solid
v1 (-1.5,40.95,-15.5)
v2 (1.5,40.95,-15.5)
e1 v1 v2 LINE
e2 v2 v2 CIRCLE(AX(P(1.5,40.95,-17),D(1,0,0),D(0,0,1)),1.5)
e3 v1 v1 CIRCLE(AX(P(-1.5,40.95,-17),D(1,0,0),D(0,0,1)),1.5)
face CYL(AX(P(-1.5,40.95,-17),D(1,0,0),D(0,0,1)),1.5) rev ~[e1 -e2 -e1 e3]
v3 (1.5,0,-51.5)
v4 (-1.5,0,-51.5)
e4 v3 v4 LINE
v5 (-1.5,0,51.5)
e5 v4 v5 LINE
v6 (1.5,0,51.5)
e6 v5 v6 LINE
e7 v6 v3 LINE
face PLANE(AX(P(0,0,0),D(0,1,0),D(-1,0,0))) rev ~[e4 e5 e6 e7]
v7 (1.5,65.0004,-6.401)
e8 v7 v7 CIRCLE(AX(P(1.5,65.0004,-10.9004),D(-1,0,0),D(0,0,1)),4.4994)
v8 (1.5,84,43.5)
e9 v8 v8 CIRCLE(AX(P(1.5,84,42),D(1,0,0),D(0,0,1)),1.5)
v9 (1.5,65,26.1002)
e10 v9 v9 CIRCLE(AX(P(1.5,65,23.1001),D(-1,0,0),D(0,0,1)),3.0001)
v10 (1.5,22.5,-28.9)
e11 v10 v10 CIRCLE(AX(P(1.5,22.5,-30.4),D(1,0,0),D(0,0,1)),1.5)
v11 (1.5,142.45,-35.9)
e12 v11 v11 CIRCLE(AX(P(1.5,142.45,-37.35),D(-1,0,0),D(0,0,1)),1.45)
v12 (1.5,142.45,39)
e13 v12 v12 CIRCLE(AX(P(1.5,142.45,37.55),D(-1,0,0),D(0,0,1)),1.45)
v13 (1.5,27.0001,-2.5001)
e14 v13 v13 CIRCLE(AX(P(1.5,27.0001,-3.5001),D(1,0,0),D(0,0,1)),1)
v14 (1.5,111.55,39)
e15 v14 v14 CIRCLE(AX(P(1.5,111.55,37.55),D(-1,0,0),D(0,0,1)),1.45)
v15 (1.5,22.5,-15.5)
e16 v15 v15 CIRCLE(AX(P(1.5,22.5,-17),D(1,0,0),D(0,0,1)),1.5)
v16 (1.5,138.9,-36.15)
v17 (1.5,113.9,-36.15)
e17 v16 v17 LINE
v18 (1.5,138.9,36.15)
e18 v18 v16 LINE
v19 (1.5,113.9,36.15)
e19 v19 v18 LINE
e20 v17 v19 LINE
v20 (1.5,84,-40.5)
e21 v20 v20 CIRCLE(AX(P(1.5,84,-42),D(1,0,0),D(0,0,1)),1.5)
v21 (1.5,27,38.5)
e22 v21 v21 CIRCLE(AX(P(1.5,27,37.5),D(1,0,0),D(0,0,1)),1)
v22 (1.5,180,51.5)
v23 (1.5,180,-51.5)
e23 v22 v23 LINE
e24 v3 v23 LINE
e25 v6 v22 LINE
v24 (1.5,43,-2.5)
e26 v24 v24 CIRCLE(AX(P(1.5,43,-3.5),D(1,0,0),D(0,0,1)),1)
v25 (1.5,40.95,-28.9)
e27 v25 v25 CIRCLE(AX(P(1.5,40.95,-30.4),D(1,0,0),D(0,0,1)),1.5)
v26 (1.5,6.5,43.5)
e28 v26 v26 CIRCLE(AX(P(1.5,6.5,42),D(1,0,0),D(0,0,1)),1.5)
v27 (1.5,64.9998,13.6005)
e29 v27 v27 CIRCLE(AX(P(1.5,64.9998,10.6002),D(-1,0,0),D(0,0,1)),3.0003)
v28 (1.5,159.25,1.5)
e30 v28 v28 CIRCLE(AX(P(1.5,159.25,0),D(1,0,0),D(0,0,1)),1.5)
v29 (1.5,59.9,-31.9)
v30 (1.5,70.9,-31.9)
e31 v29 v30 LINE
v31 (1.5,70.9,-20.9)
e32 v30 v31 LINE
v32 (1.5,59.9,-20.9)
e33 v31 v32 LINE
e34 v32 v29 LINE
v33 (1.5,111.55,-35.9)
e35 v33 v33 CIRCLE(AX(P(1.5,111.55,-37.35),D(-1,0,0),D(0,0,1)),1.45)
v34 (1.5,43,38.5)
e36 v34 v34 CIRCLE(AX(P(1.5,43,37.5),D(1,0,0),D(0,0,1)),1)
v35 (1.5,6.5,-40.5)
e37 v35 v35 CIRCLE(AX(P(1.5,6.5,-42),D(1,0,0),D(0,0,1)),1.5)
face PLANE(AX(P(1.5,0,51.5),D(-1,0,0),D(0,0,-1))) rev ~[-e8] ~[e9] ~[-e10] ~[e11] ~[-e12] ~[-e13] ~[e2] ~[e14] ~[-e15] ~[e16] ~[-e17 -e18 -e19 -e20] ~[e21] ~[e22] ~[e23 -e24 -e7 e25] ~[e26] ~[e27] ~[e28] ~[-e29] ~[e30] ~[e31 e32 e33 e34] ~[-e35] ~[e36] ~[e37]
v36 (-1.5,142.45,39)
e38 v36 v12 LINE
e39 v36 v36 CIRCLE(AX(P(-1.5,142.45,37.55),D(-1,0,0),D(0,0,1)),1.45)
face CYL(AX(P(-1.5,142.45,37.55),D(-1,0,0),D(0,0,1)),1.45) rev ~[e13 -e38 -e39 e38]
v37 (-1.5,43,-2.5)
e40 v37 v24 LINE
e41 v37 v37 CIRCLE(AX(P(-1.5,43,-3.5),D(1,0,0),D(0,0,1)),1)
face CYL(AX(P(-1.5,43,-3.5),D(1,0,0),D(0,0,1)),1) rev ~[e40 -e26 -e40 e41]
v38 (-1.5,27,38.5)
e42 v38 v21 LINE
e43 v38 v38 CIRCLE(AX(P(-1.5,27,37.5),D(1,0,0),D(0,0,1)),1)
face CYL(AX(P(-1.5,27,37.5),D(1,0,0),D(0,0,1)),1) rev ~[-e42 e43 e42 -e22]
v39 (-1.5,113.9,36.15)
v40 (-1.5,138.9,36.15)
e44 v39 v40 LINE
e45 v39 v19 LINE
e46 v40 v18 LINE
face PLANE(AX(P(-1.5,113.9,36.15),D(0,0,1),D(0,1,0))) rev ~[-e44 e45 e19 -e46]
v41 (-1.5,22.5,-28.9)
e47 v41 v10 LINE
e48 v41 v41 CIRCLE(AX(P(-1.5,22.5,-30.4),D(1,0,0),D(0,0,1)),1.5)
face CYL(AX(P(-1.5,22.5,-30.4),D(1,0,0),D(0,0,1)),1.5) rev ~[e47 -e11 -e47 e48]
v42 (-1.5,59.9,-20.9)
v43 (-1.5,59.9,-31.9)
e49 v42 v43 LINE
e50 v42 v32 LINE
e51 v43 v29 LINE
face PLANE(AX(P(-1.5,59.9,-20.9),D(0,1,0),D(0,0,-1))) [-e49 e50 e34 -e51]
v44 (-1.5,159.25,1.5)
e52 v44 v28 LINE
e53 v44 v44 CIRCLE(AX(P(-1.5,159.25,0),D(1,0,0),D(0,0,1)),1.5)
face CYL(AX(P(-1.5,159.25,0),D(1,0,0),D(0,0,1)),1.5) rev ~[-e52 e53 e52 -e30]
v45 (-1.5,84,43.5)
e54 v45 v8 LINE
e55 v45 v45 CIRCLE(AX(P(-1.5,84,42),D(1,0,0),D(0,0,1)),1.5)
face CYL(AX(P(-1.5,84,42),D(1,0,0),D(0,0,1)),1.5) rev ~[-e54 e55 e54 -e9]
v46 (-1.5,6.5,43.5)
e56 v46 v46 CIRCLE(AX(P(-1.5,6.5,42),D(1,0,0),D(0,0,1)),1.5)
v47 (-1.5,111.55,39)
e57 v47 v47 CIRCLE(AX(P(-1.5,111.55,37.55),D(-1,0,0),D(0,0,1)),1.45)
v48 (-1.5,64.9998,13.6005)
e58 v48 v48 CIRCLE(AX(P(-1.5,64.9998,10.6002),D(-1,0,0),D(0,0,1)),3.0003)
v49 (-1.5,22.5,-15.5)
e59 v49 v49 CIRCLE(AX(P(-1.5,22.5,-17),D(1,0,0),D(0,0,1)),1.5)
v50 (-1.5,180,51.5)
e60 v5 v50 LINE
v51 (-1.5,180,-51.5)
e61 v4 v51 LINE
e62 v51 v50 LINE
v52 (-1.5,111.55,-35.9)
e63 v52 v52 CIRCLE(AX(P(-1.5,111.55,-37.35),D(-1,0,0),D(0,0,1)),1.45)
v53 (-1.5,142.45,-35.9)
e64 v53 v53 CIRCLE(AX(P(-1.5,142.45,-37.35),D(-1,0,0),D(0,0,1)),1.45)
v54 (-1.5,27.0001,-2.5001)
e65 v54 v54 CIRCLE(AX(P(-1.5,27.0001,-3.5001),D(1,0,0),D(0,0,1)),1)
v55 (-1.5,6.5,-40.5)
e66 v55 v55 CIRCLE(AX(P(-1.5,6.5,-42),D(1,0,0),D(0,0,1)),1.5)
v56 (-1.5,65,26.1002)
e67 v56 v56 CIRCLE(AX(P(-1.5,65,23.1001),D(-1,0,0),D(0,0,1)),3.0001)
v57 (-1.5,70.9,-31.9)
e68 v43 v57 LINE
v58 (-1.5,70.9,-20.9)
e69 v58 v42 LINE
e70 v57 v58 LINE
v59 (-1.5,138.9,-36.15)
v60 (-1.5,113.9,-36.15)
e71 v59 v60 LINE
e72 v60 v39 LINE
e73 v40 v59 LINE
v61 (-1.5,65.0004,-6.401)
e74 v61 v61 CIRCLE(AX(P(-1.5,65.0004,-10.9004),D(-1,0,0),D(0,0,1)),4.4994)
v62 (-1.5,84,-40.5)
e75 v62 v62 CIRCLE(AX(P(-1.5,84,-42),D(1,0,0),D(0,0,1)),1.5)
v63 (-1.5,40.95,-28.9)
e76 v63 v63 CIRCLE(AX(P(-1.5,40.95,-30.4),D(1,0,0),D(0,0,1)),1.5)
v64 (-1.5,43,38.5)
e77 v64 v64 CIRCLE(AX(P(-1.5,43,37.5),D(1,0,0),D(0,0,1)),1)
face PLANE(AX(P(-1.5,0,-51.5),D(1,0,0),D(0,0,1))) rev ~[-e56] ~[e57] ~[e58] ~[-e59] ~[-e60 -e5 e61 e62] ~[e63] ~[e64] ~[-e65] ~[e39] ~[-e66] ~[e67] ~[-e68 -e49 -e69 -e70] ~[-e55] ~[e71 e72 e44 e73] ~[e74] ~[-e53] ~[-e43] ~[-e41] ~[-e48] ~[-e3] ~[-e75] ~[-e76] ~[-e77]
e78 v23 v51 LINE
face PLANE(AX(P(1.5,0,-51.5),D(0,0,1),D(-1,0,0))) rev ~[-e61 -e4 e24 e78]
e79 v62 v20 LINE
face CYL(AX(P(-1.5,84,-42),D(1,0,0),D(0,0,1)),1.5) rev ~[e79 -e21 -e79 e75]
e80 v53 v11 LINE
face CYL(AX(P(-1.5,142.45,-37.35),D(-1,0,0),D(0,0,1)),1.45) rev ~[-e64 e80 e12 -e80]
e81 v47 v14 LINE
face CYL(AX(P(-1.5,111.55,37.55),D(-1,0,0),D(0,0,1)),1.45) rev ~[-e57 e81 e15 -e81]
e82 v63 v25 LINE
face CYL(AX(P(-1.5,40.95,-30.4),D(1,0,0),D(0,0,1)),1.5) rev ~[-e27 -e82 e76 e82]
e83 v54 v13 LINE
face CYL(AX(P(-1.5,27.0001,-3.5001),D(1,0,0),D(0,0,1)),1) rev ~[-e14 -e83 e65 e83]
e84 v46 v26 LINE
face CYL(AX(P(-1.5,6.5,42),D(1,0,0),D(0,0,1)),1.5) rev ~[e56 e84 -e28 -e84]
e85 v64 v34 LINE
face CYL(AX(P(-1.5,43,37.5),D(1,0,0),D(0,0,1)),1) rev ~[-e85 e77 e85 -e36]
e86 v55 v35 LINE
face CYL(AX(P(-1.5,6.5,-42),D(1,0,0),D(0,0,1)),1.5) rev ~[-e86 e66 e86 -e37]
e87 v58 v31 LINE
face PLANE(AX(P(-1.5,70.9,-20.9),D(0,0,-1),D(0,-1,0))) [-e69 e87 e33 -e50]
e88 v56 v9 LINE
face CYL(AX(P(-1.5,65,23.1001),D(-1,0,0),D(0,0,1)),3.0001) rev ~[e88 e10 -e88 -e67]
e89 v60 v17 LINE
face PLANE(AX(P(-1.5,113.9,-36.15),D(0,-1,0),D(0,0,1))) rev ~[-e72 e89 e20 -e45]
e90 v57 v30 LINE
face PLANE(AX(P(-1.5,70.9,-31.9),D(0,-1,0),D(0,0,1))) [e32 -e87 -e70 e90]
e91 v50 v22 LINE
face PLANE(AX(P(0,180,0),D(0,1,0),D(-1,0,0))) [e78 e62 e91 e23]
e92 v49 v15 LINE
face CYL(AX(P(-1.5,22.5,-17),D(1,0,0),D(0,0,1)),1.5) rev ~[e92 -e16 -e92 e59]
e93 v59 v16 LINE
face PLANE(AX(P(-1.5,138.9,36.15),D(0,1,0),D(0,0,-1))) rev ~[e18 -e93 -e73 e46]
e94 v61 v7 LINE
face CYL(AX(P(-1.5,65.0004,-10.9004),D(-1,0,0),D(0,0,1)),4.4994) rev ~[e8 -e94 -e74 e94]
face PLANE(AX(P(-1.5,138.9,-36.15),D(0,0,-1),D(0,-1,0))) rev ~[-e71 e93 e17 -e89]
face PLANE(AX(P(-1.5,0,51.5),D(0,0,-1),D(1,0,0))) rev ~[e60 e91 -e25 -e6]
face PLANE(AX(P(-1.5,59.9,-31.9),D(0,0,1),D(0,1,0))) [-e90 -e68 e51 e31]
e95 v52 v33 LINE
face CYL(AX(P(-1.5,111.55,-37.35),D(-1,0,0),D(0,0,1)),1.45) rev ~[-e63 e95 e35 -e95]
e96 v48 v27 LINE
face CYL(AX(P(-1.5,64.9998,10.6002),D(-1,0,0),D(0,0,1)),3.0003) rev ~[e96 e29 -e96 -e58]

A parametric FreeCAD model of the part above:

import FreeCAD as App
import Part
import Sketcher

V = App.Vector


def add_polygon(sketch, points):
    """Adds a closed chain of lines whose ends are joined by coincident constraints."""
    first, n = sketch.GeometryCount, len(points)
    for a, b in zip(points, points[1:] + points[:1]):
        sketch.addGeometry(Part.LineSegment(App.Vector(*a, 0), App.Vector(*b, 0)), False)
    for i in range(n):
        sketch.addConstraint(Sketcher.Constraint("Coincident", first + i, 2, first + (i + 1) % n, 1))

doc = App.newDocument("Part")
body = doc.addObject("PartDesign::Body", "Body")

# Sketch on XZ plane
sketch1 = body.newObject("Sketcher::SketchObject", "Sketch")
sketch1.AttachmentSupport = (doc.getObject("XZ_Plane"), [""])
sketch1.MapMode = "FlatFace"
add_polygon(sketch1, [(1.5, 51.5), (1.5, -51.5), (-1.5, -51.5), (-1.5, 51.5)])  # lines 0-3
sketch1.addConstraint([
    Sketcher.Constraint("Vertical", 0),
    Sketcher.Constraint("Horizontal", 1),
    Sketcher.Constraint("Vertical", 2),
    Sketcher.Constraint("Horizontal", 3),
    Sketcher.Constraint("Symmetric", 0, 2, 2, 2, -1, 1),
    Sketcher.Constraint("DistanceX", 1, 2, 1, 1, 3.0),
    Sketcher.Constraint("DistanceY", 0, 2, 0, 1, 103.0),
])
pad1 = body.newObject("PartDesign::Pad", "Pad")
pad1.Profile = sketch1
pad1.Length = 180
pad1.Reversed = True

# Sketch on YZ plane
sketch2 = body.newObject("Sketcher::SketchObject", "Sketch001")
sketch2.AttachmentSupport = (doc.getObject("YZ_Plane"), [""])
sketch2.MapMode = "FlatFace"
sketch2.AttachmentOffset = App.Placement(V(0, 0, -1.5), App.Rotation())
sketch2.addGeometry([
    Part.Circle(V(159.2, 0, 0), V(0, 0, 1), 1.5),  # 0
    Part.Circle(V(6.5, -42, 0), V(0, 0, 1), 1.5),  # 1
    Part.Circle(V(84, -42, 0), V(0, 0, 1), 1.5),  # 2
    Part.Circle(V(84, 42, 0), V(0, 0, 1), 1.5),  # 3
    Part.Circle(V(6.5, 42, 0), V(0, 0, 1), 1.5),  # 4
], False)
sketch2.addConstraint([
    Sketcher.Constraint("Equal", 0, 1),
    Sketcher.Constraint("Equal", 1, 2),
    Sketcher.Constraint("Equal", 2, 3),
    Sketcher.Constraint("Equal", 3, 4),
    Sketcher.Constraint("Symmetric", 2, 3, 3, 3, -1),
    Sketcher.Constraint("Symmetric", 1, 3, 4, 3, -1),
    Sketcher.Constraint("PointOnObject", 0, 3, -1),
    Sketcher.Constraint("Horizontal", 1, 3, 2, 3),
    Sketcher.Constraint("Diameter", 0, 3.0),
    Sketcher.Constraint("DistanceY", 1, 3, -1, 1, 42.0),
    Sketcher.Constraint("DistanceX", -1, 1, 2, 3, 84.0),
    Sketcher.Constraint("DistanceX", -1, 1, 1, 3, 6.5),
    Sketcher.Constraint("DistanceX", -1, 1, 0, 3, 159.25),
])
doc.recompute()
hole = body.newObject("PartDesign::Hole", "Hole")
hole.Profile = sketch2
hole.ThreadType = "None"
hole.Diameter = 3
hole.DepthType = "Dimension"
hole.Depth = 5
hole.DrillPoint = "Angled"
hole.DrillPointAngle = 118
hole.Reversed = True

# Sketch on YZ plane
sketch3 = body.newObject("Sketcher::SketchObject", "Sketch002")
sketch3.AttachmentSupport = (doc.getObject("YZ_Plane"), [""])
sketch3.MapMode = "FlatFace"
sketch3.AttachmentOffset = App.Placement(V(0, 0, -1.5), App.Rotation())
add_polygon(sketch3, [(70.9, -31.9), (59.9, -31.9), (59.9, -20.9), (70.9, -20.9)])  # lines 0-3
sketch3.addGeometry(Part.Circle(V(65, -10.9, 0), V(0, 0, 1), 4.5), False)  # 4
sketch3.addGeometry(Part.Circle(V(65, 10.6, 0), V(0, 0, 1), 3), False)  # 5
sketch3.addGeometry(Part.Circle(V(65, 23.1, 0), V(0, 0, 1), 3), False)  # 6
add_polygon(sketch3, [(138.9, 36.1), (138.9, -36.1), (113.9, -36.1), (113.9, 36.1)])  # lines 7-10
sketch3.addGeometry(Part.Circle(V(142.4, -37.4, 0), V(0, 0, 1), 1.4), False)  # 11
sketch3.addGeometry(Part.Circle(V(111.5, -37.4, 0), V(0, 0, 1), 1.4), False)  # 12
sketch3.addGeometry(Part.Circle(V(111.5, 37.5, 0), V(0, 0, 1), 1.4), False)  # 13
sketch3.addGeometry(Part.Circle(V(142.4, 37.5, 0), V(0, 0, 1), 1.4), False)  # 14
sketch3.addConstraint([
    Sketcher.Constraint("Horizontal", 0),
    Sketcher.Constraint("Vertical", 1),
    Sketcher.Constraint("Horizontal", 2),
    Sketcher.Constraint("Vertical", 3),
    Sketcher.Constraint("Vertical", 7),
    Sketcher.Constraint("Horizontal", 8),
    Sketcher.Constraint("Vertical", 9),
    Sketcher.Constraint("Horizontal", 10),
    Sketcher.Constraint("Equal", 5, 6),
    Sketcher.Constraint("Equal", 11, 12),
    Sketcher.Constraint("Equal", 12, 13),
    Sketcher.Constraint("Equal", 13, 14),
    Sketcher.Constraint("Horizontal", 11, 3, 12, 3),
    Sketcher.Constraint("Horizontal", 13, 3, 14, 3),
    Sketcher.Constraint("Vertical", 12, 3, 13, 3),
    Sketcher.Constraint("Vertical", 11, 3, 14, 3),
    Sketcher.Constraint("Equal", 2, 1),
    Sketcher.Constraint("Diameter", 5, 6.0006),
    Sketcher.Constraint("Diameter", 11, 2.9),
    Sketcher.Constraint("DistanceX", 0, 2, 0, 1, 11.0),
    Sketcher.Constraint("DistanceX", 8, 2, 8, 1, 25.0),
    Sketcher.Constraint("DistanceY", 7, 2, 7, 1, 72.3),
    Sketcher.Constraint("DistanceX", -1, 1, 6, 3, 65.0),
    Sketcher.Constraint("DistanceY", 0, 2, 6, 3, 55.0),
    Sketcher.Constraint("DistanceX", 3, 2, 7, 2, 68.0),
    Sketcher.Constraint("Diameter", 4, 8.9988),
    Sketcher.Constraint("DistanceY", -1, 1, 6, 3, 23.1),
    Sketcher.Constraint("DistanceX", -1, 1, 0, 2, 59.9),
    Sketcher.Constraint("DistanceY", 5, 3, 6, 3, 12.5),
    Sketcher.Constraint("DistanceX", 12, 3, 11, 3, 30.9),
    Sketcher.Constraint("DistanceY", 12, 3, 13, 3, 74.9),
    Sketcher.Constraint("DistanceY", 11, 3, 7, 2, 1.2),
    Sketcher.Constraint("DistanceX", -1, 1, 11, 3, 142.45),
    Sketcher.Constraint("DistanceY", 11, 3, -1, 1, 37.35),
    Sketcher.Constraint("DistanceX", -1, 1, 4, 3, 65.0004),
    Sketcher.Constraint("DistanceY", 4, 3, -1, 1, 10.9004),
    Sketcher.Constraint("DistanceX", -1, 1, 5, 3, 64.9998),
])
pocket1 = body.newObject("PartDesign::Pocket", "Pocket")
pocket1.Profile = sketch3
pocket1.Type = "ThroughAll"
pocket1.Reversed = True

# Sketch on YZ plane
sketch4 = body.newObject("Sketcher::SketchObject", "Sketch003")
sketch4.AttachmentSupport = (doc.getObject("YZ_Plane"), [""])
sketch4.MapMode = "FlatFace"
sketch4.AttachmentOffset = App.Placement(V(0, 0, -1.5), App.Rotation())
sketch4.addGeometry([
    Part.Circle(V(43, -3.5, 0), V(0, 0, 1), 1),
    Part.Circle(V(27, -3.5, 0), V(0, 0, 1), 1),
    Part.Circle(V(27, 37.5, 0), V(0, 0, 1), 1),
    Part.Circle(V(43, 37.5, 0), V(0, 0, 1), 1),
], False)
sketch4.addConstraint([
    Sketcher.Constraint("Equal", 0, 1),
    Sketcher.Constraint("Equal", 1, 2),
    Sketcher.Constraint("Equal", 2, 3),
    Sketcher.Constraint("Horizontal", 0, 3, 1, 3),
    Sketcher.Constraint("Horizontal", 2, 3, 3, 3),
    Sketcher.Constraint("Vertical", 1, 3, 2, 3),
    Sketcher.Constraint("Vertical", 0, 3, 3, 3),
    Sketcher.Constraint("Diameter", 0, 2.0),
    Sketcher.Constraint("DistanceX", -1, 1, 0, 3, 43.0),
    Sketcher.Constraint("DistanceX", -1, 1, 1, 3, 27.0),
    Sketcher.Constraint("DistanceY", 1, 3, 2, 3, 41.0),
    Sketcher.Constraint("DistanceY", 0, 3, -1, 1, 3.5),
])
doc.recompute()
hole2 = body.newObject("PartDesign::Hole", "Hole001")
hole2.Profile = sketch4
hole2.ThreadType = "None"
hole2.Diameter = 2
hole2.DepthType = "ThroughAll"
hole2.Reversed = True

# Sketch on YZ plane
sketch5 = body.newObject("Sketcher::SketchObject", "Sketch004")
sketch5.AttachmentSupport = (doc.getObject("YZ_Plane"), [""])
sketch5.MapMode = "FlatFace"
sketch5.AttachmentOffset = App.Placement(V(0, 0, -1.5), App.Rotation())
sketch5.addGeometry([
    Part.Circle(V(41, -17, 0), V(0, 0, 1), 1.5),
    Part.Circle(V(41, -30.4, 0), V(0, 0, 1), 1.5),
    Part.Circle(V(22.5, -30.4, 0), V(0, 0, 1), 1.5),
    Part.Circle(V(22.5, -17, 0), V(0, 0, 1), 1.5),
], False)
sketch5.addConstraint([
    Sketcher.Constraint("Equal", 0, 1),
    Sketcher.Constraint("Equal", 1, 2),
    Sketcher.Constraint("Equal", 2, 3),
    Sketcher.Constraint("Horizontal", 1, 3, 2, 3),
    Sketcher.Constraint("Horizontal", 0, 3, 3, 3),
    Sketcher.Constraint("Vertical", 0, 3, 1, 3),
    Sketcher.Constraint("Vertical", 2, 3, 3, 3),
    Sketcher.Constraint("Diameter", 0, 3.0),
    Sketcher.Constraint("DistanceY", 0, 3, -1, 1, 17.0),
    Sketcher.Constraint("DistanceY", 1, 3, -1, 1, 30.4),
    Sketcher.Constraint("DistanceX", -1, 1, 2, 3, 22.5),
    Sketcher.Constraint("DistanceX", -1, 1, 0, 3, 40.95),
])
doc.recompute()
hole3 = body.newObject("PartDesign::Hole", "Hole002")
hole3.Profile = sketch5
hole3.ThreadType = "None"
hole3.Diameter = 3
hole3.DepthType = "ThroughAll"
hole3.Reversed = True

doc.recompute()
